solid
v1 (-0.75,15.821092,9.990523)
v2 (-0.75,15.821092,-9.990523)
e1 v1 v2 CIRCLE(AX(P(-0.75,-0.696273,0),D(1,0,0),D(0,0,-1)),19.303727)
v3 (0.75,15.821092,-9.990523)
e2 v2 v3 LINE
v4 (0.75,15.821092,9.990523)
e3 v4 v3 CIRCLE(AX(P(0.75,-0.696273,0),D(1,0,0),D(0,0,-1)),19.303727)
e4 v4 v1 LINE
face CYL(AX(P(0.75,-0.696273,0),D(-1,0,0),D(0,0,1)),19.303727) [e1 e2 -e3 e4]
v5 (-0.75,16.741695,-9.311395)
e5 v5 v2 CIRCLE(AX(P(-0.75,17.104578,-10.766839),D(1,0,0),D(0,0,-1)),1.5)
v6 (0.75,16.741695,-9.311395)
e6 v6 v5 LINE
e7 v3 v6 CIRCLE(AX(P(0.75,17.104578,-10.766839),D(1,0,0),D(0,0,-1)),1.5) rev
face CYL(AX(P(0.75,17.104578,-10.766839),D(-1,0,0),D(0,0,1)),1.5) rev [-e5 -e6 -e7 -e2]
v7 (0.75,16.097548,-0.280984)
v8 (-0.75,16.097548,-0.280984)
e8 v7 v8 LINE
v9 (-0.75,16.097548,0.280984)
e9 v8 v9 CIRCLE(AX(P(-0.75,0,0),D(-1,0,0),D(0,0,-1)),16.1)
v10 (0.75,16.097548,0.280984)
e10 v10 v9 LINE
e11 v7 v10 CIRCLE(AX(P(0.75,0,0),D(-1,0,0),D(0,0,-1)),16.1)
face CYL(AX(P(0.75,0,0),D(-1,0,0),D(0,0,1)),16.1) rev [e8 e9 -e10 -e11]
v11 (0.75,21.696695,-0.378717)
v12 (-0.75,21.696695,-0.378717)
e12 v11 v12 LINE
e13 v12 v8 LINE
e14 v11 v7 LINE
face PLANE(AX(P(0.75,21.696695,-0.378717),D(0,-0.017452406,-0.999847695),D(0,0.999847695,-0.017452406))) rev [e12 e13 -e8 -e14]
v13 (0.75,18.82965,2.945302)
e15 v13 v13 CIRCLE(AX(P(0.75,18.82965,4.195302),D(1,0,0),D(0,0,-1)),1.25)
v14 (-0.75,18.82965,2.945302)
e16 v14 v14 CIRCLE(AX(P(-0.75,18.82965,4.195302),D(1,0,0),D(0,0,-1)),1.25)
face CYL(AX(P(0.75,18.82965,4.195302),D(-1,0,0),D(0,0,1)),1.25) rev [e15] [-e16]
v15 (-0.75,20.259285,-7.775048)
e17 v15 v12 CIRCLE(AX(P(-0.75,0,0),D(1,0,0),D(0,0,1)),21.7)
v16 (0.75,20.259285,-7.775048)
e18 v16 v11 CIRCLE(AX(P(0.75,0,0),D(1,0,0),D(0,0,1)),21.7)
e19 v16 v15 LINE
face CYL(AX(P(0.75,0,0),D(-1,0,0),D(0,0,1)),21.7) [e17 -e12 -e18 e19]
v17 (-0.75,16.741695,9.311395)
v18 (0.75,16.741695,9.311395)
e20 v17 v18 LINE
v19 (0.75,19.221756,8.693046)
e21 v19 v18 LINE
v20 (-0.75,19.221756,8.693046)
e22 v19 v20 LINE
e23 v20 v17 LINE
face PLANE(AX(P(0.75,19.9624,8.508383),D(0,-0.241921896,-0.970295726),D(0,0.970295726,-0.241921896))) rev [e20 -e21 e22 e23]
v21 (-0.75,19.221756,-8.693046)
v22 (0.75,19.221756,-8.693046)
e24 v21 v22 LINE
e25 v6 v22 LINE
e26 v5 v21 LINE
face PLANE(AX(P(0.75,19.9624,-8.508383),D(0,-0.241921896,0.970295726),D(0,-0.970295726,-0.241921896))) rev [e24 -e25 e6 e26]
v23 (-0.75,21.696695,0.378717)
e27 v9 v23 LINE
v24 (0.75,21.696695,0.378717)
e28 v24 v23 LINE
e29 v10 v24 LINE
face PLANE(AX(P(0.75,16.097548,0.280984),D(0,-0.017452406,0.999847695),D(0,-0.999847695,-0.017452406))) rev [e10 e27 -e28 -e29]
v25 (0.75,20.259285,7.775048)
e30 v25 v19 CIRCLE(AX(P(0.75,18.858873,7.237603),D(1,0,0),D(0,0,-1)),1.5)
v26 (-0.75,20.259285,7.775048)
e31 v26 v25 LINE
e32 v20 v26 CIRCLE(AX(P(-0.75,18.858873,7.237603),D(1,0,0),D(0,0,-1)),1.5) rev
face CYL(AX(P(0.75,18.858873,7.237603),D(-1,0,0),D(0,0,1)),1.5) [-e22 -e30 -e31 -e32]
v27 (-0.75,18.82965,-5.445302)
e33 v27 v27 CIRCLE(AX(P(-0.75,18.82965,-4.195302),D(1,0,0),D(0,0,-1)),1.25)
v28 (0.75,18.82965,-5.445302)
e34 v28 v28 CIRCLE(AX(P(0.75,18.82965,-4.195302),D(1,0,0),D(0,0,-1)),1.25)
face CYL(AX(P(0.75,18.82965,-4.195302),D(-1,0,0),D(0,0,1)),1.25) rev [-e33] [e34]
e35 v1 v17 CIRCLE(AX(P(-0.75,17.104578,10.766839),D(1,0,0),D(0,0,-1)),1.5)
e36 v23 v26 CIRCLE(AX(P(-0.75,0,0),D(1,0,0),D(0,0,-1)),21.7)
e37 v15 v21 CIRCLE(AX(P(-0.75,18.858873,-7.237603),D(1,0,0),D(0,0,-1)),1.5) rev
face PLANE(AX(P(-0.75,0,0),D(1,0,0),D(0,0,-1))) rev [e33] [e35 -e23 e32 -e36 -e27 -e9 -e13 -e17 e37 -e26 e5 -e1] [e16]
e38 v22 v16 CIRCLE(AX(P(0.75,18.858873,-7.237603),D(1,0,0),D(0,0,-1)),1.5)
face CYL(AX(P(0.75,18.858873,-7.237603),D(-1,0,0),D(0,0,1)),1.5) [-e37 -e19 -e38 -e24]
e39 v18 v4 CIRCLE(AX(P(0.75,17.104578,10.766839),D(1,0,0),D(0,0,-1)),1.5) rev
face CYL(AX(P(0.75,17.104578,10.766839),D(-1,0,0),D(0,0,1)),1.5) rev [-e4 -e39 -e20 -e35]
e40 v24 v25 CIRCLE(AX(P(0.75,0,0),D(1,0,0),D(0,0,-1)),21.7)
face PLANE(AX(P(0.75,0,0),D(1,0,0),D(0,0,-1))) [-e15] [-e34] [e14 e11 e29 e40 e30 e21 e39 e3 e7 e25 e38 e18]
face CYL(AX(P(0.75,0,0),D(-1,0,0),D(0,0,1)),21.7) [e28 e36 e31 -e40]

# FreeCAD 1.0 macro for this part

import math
import FreeCAD as App
import Part
import Sketcher
Q = App.Units.Quantity


def edges_at(feature, points):
    """Names of the edges that pass closest to the given points."""
    edges = feature.Shape.Edges
    near = lambda p: min(range(len(edges)), key=lambda i: edges[i].distToShape(Part.Vertex(*p))[0])
    return sorted({f"Edge{near(p) + 1}" for p in points})

doc = App.newDocument("Part")
params = doc.addObject("Spreadsheet::Sheet", "Params")
for row, (alias, value) in enumerate([
    ("sketch1_diameter", "2.5 mm"),
    ("sketch1_diameter2", "2.5 mm"),
    ("sketch1_radius", "21.7 mm"),
    ("sketch1_radius2", "21.7 mm"),
    ("sketch1_radius3", "16.1 mm"),
    ("pad1_length", "1.5 mm"),
    ("fillet_radius", "1.5 mm"),
], start=1):
    params.set(f"A{row}", alias)
    params.set(f"B{row}", "=" + value)
    params.setAlias(f"B{row}", alias)

body = doc.addObject("PartDesign::Body", "Body")

# Sketch on YZ plane
sketch1 = body.newObject("Sketcher::SketchObject", "Sketch")
sketch1.AttachmentSupport = (doc.getObject("YZ_Plane"), [""])
sketch1.MapMode = "FlatFace"
sketch1.addGeometry([
    Part.LineSegment(App.Vector(16.097548, 0.280984, 0), App.Vector(21.696695, 0.378717, 0)),  # 0
    Part.ArcOfCircle(Part.Circle(App.Vector(0, 0, 0), App.Vector(0, 0, 1), 21.7), math.radians(1), math.radians(23.084694)),  # 1
    Part.LineSegment(App.Vector(19.9624, 8.508383, 0), App.Vector(16.128096, 9.464382, 0)),  # 2
    Part.ArcOfCircle(Part.Circle(App.Vector(-0.696273, 0, 0), App.Vector(0, 0, 1), 19.303727), math.radians(29.359501), math.radians(330.640499)),  # 3
    Part.LineSegment(App.Vector(16.128096, -9.464382, 0), App.Vector(19.9624, -8.508383, 0)),  # 4
    Part.ArcOfCircle(Part.Circle(App.Vector(0, 0, 0), App.Vector(0, 0, 1), 21.7), math.radians(-23.084694), math.radians(-1)),  # 5
    Part.LineSegment(App.Vector(21.696695, -0.378717, 0), App.Vector(16.097548, -0.280984, 0)),  # 6
    Part.ArcOfCircle(Part.Circle(App.Vector(0, 0, 0), App.Vector(0, 0, 1), 16.1), math.radians(1), math.radians(359)),  # 7
    Part.Circle(App.Vector(18.82965, 4.195302, 0), App.Vector(0, 0, 1), 1.25),  # 8
    Part.Circle(App.Vector(18.82965, -4.195302, 0), App.Vector(0, 0, 1), 1.25),  # 9
], False)
sketch1.addConstraint([
    Sketcher.Constraint("Coincident", 0, 2, 1, 1),
    Sketcher.Constraint("Coincident", 1, 2, 2, 1),
    Sketcher.Constraint("Coincident", 2, 2, 3, 1),
    Sketcher.Constraint("Coincident", 3, 2, 4, 1),
    Sketcher.Constraint("Coincident", 4, 2, 5, 1),
    Sketcher.Constraint("Coincident", 5, 2, 6, 1),
    Sketcher.Constraint("Coincident", 6, 2, 7, 2),
    Sketcher.Constraint("Coincident", 7, 1, 0, 1),
    Sketcher.Constraint("Coincident", 1, 3, -1, 1),
    Sketcher.Constraint("Coincident", 5, 3, -1, 1),
    Sketcher.Constraint("Coincident", 7, 3, -1, 1),
    Sketcher.Constraint("PointOnObject", 3, 3, -1),
    Sketcher.Constraint("Diameter", 8, Q("2.5 mm")),
    Sketcher.Constraint("Diameter", 9, Q("2.5 mm")),
    Sketcher.Constraint("Radius", 1, Q("21.7 mm")),
    Sketcher.Constraint("Radius", 5, Q("21.7 mm")),
    Sketcher.Constraint("Radius", 7, Q("16.1 mm")),
    Sketcher.Constraint("Radius", 3, Q("19.303727 mm")),
    Sketcher.Constraint("DistanceY", 1, 2, 2, 2, Q("0.956 mm")),
    Sketcher.Constraint("DistanceY", 3, 2, 4, 2, Q("0.956 mm")),
    Sketcher.Constraint("DistanceY", -1, 1, 8, 3, Q("4.195302 mm")),
    Sketcher.Constraint("DistanceY", 9, 3, -1, 1, Q("4.195302 mm")),
    Sketcher.Constraint("DistanceX", -1, 1, 1, 2, Q("19.9624 mm")),
    Sketcher.Constraint("DistanceX", -1, 1, 4, 2, Q("19.9624 mm")),
    Sketcher.Constraint("DistanceX", 2, 2, 0, 2, Q("5.568599 mm")),
    Sketcher.Constraint("DistanceY", 3, 2, 0, 2, Q("9.8431 mm")),
    Sketcher.Constraint("DistanceY", 5, 2, 1, 2, Q("8.8871 mm")),
    Sketcher.Constraint("DistanceX", 6, 2, 9, 3, Q("2.732102 mm")),
    Sketcher.Constraint("DistanceX", 6, 2, 8, 3, Q("2.732102 mm")),
    Sketcher.Constraint("DistanceY", 6, 2, 0, 2, Q("0.659701 mm")),
    Sketcher.Constraint("DistanceX", 7, 1, 8, 3, Q("2.732102 mm")),
])
sketch1.setExpression("Constraints[12]", "Params.sketch1_diameter")
sketch1.setExpression("Constraints[13]", "Params.sketch1_diameter2")
sketch1.setExpression("Constraints[14]", "Params.sketch1_radius")
sketch1.setExpression("Constraints[15]", "Params.sketch1_radius2")
sketch1.setExpression("Constraints[16]", "Params.sketch1_radius3")
pad1 = body.newObject("PartDesign::Pad", "Pad")
pad1.Profile = sketch1
pad1.setExpression("Length", "Params.pad1_length")
pad1.Midplane = True
doc.recompute()

fillet = body.newObject("PartDesign::Fillet", "Fillet")
fillet.Base = (pad1, edges_at(pad1, [
    (0, 19.962, -8.508),
    (0, 16.128, -9.464),
    (0, 16.128, 9.464),
    (0, 19.962, 8.508),
]))
fillet.setExpression("Radius", "Params.fillet_radius")

doc.recompute()
